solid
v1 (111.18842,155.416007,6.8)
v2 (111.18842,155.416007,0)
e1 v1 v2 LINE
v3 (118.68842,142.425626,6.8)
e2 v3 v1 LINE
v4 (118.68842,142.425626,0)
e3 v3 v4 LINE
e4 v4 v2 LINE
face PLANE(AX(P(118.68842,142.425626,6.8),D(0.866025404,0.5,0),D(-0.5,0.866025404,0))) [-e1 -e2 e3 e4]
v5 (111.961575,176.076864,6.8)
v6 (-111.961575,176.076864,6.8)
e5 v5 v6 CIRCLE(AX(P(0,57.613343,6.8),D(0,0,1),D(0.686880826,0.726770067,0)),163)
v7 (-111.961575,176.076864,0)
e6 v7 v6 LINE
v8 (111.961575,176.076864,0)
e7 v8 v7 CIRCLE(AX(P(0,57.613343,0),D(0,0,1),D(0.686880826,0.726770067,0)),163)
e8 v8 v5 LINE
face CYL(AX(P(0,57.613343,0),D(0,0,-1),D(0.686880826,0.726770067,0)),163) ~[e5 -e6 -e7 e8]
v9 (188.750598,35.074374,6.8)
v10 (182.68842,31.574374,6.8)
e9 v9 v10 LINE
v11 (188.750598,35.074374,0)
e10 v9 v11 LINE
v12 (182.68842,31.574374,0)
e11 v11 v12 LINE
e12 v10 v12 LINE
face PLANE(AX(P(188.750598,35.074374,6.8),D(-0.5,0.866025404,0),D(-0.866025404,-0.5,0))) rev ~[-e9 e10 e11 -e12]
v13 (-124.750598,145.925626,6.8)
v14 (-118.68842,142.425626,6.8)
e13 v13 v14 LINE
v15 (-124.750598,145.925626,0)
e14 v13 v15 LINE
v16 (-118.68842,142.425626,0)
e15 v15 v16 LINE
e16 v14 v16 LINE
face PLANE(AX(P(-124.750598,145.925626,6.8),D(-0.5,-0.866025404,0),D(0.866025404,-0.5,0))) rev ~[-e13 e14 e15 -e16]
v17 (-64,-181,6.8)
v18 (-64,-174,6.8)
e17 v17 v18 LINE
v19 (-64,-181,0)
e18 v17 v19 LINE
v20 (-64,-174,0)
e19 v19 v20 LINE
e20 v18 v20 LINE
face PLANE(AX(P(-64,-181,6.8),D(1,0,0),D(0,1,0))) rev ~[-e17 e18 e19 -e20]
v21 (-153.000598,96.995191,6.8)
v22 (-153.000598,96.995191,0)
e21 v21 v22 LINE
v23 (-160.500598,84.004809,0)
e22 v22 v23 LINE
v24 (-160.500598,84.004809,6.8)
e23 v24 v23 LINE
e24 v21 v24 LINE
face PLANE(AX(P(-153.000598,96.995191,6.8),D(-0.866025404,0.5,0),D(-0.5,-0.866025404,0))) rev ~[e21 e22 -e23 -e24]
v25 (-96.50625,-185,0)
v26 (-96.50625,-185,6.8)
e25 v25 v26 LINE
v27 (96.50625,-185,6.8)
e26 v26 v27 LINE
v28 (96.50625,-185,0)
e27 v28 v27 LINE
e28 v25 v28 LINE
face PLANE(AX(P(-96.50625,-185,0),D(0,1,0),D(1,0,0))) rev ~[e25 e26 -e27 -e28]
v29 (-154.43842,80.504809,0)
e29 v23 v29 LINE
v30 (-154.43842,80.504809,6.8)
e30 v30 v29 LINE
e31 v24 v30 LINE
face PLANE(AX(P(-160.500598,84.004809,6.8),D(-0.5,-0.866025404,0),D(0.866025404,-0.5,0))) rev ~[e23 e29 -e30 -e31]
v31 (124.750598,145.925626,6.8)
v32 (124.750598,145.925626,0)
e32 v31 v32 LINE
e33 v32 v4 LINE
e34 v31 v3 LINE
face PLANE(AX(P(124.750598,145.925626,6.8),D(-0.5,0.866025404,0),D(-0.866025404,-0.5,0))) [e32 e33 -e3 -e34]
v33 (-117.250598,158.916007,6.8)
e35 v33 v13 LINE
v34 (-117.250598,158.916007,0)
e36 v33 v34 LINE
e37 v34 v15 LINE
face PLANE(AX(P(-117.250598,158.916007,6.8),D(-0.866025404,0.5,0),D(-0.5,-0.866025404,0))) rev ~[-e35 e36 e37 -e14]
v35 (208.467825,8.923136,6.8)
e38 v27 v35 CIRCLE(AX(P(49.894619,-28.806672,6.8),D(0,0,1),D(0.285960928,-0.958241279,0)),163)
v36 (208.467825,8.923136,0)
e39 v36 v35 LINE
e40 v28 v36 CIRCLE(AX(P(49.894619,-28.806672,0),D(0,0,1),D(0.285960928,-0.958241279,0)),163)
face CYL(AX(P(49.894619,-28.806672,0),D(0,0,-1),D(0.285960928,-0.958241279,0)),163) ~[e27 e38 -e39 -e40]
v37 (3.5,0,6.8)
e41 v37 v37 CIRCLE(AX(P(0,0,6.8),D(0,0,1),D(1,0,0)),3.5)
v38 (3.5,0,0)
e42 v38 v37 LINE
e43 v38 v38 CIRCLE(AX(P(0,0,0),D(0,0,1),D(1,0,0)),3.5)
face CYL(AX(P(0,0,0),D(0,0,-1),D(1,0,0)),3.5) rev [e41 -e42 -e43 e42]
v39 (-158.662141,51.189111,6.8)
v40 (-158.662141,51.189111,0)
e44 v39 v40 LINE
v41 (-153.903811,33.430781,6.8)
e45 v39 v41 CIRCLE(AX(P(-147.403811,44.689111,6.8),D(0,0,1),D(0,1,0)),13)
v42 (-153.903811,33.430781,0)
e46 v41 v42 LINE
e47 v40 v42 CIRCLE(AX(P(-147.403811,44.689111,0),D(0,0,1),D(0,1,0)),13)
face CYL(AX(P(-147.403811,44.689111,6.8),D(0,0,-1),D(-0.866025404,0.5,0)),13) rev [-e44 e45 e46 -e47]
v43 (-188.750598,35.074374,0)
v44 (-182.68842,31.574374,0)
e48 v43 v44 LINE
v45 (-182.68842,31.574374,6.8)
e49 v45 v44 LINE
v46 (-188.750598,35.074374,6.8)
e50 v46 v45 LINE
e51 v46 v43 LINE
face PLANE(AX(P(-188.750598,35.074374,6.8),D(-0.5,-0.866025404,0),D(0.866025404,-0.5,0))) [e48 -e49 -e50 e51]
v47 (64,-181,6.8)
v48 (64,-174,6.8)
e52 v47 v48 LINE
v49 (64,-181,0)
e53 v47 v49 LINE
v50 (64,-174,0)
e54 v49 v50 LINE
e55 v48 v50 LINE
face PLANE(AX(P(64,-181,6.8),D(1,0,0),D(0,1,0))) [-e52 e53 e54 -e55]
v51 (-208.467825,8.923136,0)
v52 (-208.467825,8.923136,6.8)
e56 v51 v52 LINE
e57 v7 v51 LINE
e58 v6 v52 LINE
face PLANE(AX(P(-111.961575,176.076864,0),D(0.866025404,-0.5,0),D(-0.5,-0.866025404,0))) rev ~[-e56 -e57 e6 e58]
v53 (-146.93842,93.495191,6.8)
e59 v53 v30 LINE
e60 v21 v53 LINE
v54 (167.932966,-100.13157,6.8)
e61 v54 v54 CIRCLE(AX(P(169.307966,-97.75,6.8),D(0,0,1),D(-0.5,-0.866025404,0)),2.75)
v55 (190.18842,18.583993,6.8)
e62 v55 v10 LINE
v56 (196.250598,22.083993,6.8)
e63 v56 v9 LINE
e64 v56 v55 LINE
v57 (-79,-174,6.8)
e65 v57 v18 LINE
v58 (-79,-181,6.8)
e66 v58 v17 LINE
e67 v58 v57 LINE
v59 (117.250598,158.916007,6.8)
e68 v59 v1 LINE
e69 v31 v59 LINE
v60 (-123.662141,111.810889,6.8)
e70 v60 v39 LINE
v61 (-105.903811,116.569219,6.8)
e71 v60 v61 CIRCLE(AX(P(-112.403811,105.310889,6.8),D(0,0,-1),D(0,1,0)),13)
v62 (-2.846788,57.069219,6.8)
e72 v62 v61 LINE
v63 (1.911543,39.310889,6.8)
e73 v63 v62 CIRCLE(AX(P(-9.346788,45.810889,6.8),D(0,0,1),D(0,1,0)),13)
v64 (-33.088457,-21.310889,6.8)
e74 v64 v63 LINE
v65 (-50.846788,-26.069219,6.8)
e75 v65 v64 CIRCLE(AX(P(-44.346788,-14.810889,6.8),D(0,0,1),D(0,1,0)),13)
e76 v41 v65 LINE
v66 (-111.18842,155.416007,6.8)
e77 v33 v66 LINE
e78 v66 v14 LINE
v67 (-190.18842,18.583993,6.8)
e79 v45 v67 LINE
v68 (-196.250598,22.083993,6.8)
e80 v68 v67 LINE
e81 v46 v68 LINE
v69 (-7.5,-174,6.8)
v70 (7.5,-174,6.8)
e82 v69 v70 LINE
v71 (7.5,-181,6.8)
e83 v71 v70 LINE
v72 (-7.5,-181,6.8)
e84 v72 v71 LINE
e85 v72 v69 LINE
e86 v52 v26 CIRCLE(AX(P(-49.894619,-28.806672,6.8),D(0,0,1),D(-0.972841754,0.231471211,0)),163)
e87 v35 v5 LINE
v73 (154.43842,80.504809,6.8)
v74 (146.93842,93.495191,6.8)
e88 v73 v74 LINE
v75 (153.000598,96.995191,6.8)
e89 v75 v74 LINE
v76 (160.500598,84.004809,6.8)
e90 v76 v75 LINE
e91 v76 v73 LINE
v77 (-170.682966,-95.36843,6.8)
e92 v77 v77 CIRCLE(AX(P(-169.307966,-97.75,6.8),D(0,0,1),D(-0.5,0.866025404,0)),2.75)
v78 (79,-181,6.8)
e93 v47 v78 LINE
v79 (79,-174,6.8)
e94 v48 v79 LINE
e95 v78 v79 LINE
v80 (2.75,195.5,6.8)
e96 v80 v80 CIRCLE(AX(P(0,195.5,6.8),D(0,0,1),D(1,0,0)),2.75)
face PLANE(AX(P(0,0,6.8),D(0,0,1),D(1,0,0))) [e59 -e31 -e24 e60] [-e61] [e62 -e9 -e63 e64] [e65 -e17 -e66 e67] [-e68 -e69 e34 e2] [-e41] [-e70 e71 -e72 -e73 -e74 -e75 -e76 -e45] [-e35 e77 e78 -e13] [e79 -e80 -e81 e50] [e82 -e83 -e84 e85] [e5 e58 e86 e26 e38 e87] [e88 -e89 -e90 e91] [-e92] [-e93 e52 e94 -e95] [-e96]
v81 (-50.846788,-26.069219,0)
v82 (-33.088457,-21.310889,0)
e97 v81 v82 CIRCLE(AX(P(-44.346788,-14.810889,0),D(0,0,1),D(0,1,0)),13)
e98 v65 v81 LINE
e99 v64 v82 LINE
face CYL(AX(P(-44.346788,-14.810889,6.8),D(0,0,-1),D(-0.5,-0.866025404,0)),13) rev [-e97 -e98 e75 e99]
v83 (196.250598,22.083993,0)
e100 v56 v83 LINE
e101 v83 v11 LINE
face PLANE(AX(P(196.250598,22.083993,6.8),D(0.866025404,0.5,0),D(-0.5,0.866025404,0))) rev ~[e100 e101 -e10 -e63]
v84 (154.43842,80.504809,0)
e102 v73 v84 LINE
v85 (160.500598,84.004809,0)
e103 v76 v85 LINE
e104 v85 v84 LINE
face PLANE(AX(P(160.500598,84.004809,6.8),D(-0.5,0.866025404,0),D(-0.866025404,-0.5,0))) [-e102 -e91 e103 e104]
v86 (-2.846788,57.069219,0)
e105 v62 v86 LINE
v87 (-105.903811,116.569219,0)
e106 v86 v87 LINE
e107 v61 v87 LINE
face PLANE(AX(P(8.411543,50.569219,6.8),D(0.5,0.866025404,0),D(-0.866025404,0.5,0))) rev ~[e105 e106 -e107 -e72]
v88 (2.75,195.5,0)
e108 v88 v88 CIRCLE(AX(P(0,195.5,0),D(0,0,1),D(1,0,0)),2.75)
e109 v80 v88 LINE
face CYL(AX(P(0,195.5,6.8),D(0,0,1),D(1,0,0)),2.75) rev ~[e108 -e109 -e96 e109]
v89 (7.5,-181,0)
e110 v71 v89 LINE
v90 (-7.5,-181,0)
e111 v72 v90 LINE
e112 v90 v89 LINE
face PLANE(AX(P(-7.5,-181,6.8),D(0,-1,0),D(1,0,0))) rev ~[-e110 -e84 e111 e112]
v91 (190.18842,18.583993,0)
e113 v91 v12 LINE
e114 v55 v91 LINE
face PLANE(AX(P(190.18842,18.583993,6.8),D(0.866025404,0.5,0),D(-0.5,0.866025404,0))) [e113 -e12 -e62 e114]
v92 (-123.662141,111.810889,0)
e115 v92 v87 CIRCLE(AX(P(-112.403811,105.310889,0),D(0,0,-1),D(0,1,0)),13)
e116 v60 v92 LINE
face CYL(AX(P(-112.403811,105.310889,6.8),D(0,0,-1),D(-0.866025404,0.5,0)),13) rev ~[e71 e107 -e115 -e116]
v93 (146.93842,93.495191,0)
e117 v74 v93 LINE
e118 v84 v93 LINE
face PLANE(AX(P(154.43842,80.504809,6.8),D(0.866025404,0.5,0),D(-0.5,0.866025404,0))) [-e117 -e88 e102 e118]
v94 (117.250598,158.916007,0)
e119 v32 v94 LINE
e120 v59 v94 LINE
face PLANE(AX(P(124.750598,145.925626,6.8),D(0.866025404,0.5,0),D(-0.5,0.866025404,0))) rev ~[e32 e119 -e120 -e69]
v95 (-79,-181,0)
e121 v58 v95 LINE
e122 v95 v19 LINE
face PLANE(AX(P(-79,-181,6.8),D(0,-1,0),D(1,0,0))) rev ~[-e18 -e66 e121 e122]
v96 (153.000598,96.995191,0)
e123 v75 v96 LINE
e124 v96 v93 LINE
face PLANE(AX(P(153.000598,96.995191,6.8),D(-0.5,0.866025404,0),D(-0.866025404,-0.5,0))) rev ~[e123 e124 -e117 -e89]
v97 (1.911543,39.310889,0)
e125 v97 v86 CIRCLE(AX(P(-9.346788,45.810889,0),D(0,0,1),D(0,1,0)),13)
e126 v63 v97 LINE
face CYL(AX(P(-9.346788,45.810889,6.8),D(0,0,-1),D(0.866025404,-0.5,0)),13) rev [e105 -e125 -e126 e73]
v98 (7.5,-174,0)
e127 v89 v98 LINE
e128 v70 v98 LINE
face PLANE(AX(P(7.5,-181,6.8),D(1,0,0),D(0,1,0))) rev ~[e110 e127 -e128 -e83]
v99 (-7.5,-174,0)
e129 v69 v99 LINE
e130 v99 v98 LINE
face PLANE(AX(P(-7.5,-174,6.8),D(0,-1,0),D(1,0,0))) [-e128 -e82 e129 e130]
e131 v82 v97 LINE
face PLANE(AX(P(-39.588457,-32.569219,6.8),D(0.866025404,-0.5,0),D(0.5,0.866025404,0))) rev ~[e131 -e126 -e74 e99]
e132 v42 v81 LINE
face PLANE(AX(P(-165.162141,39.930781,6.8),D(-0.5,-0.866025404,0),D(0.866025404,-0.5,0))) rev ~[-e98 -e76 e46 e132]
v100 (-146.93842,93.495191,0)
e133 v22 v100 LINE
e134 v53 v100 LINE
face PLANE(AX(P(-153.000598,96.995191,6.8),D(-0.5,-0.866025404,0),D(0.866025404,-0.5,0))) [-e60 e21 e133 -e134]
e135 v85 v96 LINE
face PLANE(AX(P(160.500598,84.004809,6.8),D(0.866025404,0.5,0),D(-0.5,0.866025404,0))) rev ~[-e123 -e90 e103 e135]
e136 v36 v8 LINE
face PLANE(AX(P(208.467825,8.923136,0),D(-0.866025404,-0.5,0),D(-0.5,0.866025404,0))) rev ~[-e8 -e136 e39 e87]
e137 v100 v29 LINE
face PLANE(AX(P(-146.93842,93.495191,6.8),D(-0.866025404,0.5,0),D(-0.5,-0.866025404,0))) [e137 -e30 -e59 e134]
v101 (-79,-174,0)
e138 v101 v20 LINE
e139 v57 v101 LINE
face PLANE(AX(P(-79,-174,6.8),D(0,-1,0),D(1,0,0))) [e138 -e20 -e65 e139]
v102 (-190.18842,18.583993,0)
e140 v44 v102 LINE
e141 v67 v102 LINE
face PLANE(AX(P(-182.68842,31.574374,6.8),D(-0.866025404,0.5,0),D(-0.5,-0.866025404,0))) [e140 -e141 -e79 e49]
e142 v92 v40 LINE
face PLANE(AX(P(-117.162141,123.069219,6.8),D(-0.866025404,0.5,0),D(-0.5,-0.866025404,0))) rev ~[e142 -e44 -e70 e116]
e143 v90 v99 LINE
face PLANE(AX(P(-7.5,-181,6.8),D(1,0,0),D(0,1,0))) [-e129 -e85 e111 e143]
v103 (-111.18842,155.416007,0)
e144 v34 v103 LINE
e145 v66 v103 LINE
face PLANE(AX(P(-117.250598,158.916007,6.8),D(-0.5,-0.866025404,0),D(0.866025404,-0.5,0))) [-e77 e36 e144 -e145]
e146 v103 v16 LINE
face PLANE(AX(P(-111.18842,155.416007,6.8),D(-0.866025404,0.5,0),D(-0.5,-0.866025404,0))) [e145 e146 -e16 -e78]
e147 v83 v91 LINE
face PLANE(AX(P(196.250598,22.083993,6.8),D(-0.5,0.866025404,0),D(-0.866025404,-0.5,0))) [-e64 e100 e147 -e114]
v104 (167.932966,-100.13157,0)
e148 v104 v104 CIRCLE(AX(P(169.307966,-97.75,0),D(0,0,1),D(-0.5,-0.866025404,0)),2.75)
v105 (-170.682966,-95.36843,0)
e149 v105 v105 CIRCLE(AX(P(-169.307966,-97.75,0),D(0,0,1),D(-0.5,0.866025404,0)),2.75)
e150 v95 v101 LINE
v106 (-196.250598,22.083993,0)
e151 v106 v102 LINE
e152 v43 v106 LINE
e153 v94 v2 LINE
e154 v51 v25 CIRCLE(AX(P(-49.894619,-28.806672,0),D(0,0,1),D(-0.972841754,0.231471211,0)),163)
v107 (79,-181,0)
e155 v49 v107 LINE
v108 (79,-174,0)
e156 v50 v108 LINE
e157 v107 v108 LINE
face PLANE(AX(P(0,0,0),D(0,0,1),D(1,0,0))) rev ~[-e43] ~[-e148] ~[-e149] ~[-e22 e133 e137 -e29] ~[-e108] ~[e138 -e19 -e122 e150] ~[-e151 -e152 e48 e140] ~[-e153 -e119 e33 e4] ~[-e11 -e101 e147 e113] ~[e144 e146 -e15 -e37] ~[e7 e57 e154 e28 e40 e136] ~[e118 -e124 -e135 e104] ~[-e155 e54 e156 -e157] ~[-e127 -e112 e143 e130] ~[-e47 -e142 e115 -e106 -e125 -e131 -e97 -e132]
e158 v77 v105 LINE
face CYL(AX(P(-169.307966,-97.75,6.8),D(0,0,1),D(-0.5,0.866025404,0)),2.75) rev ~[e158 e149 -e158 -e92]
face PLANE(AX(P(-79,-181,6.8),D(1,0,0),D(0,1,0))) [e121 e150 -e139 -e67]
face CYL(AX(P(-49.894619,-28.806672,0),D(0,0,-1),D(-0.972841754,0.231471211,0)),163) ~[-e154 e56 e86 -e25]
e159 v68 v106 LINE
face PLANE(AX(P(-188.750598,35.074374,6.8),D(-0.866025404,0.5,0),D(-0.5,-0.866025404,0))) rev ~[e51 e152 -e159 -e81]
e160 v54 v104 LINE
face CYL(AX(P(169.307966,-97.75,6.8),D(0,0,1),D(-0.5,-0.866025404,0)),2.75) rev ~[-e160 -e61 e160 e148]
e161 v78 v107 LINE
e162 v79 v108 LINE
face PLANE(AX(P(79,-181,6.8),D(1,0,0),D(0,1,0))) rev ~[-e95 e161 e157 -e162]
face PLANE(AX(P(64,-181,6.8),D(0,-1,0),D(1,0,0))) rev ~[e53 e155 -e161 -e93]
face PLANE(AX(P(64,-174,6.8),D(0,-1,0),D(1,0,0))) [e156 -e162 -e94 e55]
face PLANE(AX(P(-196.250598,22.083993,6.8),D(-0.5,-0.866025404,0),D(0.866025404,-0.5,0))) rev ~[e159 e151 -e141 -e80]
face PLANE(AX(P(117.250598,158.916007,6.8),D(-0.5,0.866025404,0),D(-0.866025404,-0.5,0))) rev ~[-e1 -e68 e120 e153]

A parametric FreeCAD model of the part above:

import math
import FreeCAD as App
import Part
import Sketcher

V = App.Vector
Q = App.Units.Quantity


def edges_at(feature, points):
    """Names of the edges that pass closest to the given points."""
    edges = feature.Shape.Edges
    near = lambda p: min(range(len(edges)), key=lambda i: edges[i].distToShape(Part.Vertex(*p))[0])
    return sorted({f"Edge{near(p) + 1}" for p in points})

doc = App.newDocument("Part")
body = doc.addObject("PartDesign::Body", "Body")

# Sketch on XY plane
sketch1 = doc.addObject("Sketcher::SketchObject", "Sketch")
body.addObject(sketch1)
sketch1.AttachmentSupport = (doc.XY_Plane, [""])
sketch1.MapMode = "FlatFace"
sketch1.addGeometry([
    Part.LineSegment(V(-96.50625, -185, 0), V(96.50625, -185, 0)),  # 0
    Part.ArcOfCircle(Part.Circle(V(49.894619, -28.806672, 0), V(0, 0, 1), 163), math.radians(-73.383704), math.radians(13.383704)),  # 1
    Part.LineSegment(V(208.467825, 8.923136, 0), V(111.961575, 176.076864, 0)),  # 2
    Part.ArcOfCircle(Part.Circle(V(0, 57.613343, 0), V(0, 0, 1), 163), math.radians(46.616296), math.radians(133.383704)),  # 3
    Part.LineSegment(V(-111.961575, 176.076864, 0), V(-208.467825, 8.923136, 0)),  # 4
    Part.ArcOfCircle(Part.Circle(V(-49.894619, -28.806672, 0), V(0, 0, 1), 163), math.radians(166.616296), math.radians(253.383704)),  # 5
    Part.Circle(V(0, 0, 0), V(0, 0, 1), 3.5),  # 6
], False)
sketch1.addConstraint([
    Sketcher.Constraint("Coincident", 0, 2, 1, 1),
    Sketcher.Constraint("Coincident", 1, 2, 2, 1),
    Sketcher.Constraint("Coincident", 2, 2, 3, 1),
    Sketcher.Constraint("Coincident", 3, 2, 4, 1),
    Sketcher.Constraint("Coincident", 4, 2, 5, 1),
    Sketcher.Constraint("Coincident", 5, 2, 0, 1),
    Sketcher.Constraint("Horizontal", 0),
    Sketcher.Constraint("Coincident", 6, 3, -1, 1),
    Sketcher.Constraint("Equal", 1, 3),
    Sketcher.Constraint("Equal", 3, 5),
    Sketcher.Constraint("Symmetric", 1, 3, 5, 3, -2),
    Sketcher.Constraint("Symmetric", 2, 2, 3, 2, -2),
    Sketcher.Constraint("Horizontal", 1, 2, 4, 2),
    Sketcher.Constraint("Diameter", 6, Q("7 mm")),
    Sketcher.Constraint("Radius", 1, Q("163 mm")),
    Sketcher.Constraint("Angle", 2, Q("120 deg")),
    Sketcher.Constraint("DistanceY", 0, 2, -1, 1, Q("185 mm")),
    Sketcher.Constraint("DistanceX", 0, 1, 0, 2, Q("193.0125 mm")),
    Sketcher.Constraint("Distance", 2, Q("193.0125 mm")),
    Sketcher.Constraint("DistanceX", -1, 1, 1, 3, Q("49.894619 mm")),
    Sketcher.Constraint("DistanceY", 3, 3, 2, 2, Q("118.463521 mm")),
])
pad1 = doc.addObject("PartDesign::Pad", "Pad")
body.addObject(pad1)
pad1.Profile = sketch1
pad1.Length = 6.8

# Sketch on XY plane
sketch2 = doc.addObject("Sketcher::SketchObject", "Sketch001")
body.addObject(sketch2)
sketch2.AttachmentSupport = (doc.XY_Plane, [""])
sketch2.MapMode = "FlatFace"
sketch2.AttachmentOffset = App.Placement(V(0, 0, 6.8), App.Rotation())
sketch2.addGeometry([
    Part.LineSegment(V(-7.5, -174, 0), V(-7.5, -181, 0)),  # 0
    Part.LineSegment(V(-7.5, -181, 0), V(7.5, -181, 0)),  # 1
    Part.LineSegment(V(7.5, -181, 0), V(7.5, -174, 0)),  # 2
    Part.LineSegment(V(7.5, -174, 0), V(-7.5, -174, 0)),  # 3
    Part.LineSegment(V(64, -174, 0), V(64, -181, 0)),  # 4
    Part.LineSegment(V(64, -181, 0), V(79, -181, 0)),  # 5
    Part.LineSegment(V(79, -181, 0), V(79, -174, 0)),  # 6
    Part.LineSegment(V(79, -174, 0), V(64, -174, 0)),  # 7
    Part.LineSegment(V(-79, -174, 0), V(-79, -181, 0)),  # 8
    Part.LineSegment(V(-79, -181, 0), V(-64, -181, 0)),  # 9
    Part.LineSegment(V(-64, -181, 0), V(-64, -174, 0)),  # 10
    Part.LineSegment(V(-64, -174, 0), V(-79, -174, 0)),  # 11
], False)
sketch2.addConstraint([
    Sketcher.Constraint("Coincident", 0, 2, 1, 1),
    Sketcher.Constraint("Coincident", 1, 2, 2, 1),
    Sketcher.Constraint("Coincident", 2, 2, 3, 1),
    Sketcher.Constraint("Coincident", 3, 2, 0, 1),
    Sketcher.Constraint("Coincident", 4, 2, 5, 1),
    Sketcher.Constraint("Coincident", 5, 2, 6, 1),
    Sketcher.Constraint("Coincident", 6, 2, 7, 1),
    Sketcher.Constraint("Coincident", 7, 2, 4, 1),
    Sketcher.Constraint("Coincident", 8, 2, 9, 1),
    Sketcher.Constraint("Coincident", 9, 2, 10, 1),
    Sketcher.Constraint("Coincident", 10, 2, 11, 1),
    Sketcher.Constraint("Coincident", 11, 2, 8, 1),
    Sketcher.Constraint("Vertical", 0),
    Sketcher.Constraint("Horizontal", 1),
    Sketcher.Constraint("Vertical", 2),
    Sketcher.Constraint("Horizontal", 3),
    Sketcher.Constraint("Vertical", 4),
    Sketcher.Constraint("Horizontal", 5),
    Sketcher.Constraint("Vertical", 6),
    Sketcher.Constraint("Horizontal", 7),
    Sketcher.Constraint("Vertical", 8),
    Sketcher.Constraint("Horizontal", 9),
    Sketcher.Constraint("Vertical", 10),
    Sketcher.Constraint("Horizontal", 11),
    Sketcher.Constraint("Symmetric", 5, 2, 8, 2, -2),
    Sketcher.Constraint("Symmetric", 7, 2, 10, 2, -2),
    Sketcher.Constraint("Horizontal", 1, 2, 4, 2),
    Sketcher.Constraint("Horizontal", 3, 2, 6, 2),
    Sketcher.Constraint("Equal", 3, 5),
    Sketcher.Constraint("DistanceX", 1, 1, 1, 2, Q("15 mm")),
    Sketcher.Constraint("DistanceY", 0, 2, 0, 1, Q("7 mm")),
    Sketcher.Constraint("DistanceY", 0, 2, -1, 1, Q("181 mm")),
    Sketcher.Constraint("DistanceX", -1, 1, 4, 2, Q("64 mm")),
    Sketcher.Constraint("DistanceX", 0, 2, -1, 1, Q("7.5 mm")),
])
pocket1 = doc.addObject("PartDesign::Pocket", "Pocket")
body.addObject(pocket1)
pocket1.Profile = sketch2
pocket1.Length = 6.8

# Sketch on XY plane
sketch3 = doc.addObject("Sketcher::SketchObject", "Sketch002")
body.addObject(sketch3)
sketch3.AttachmentSupport = (doc.XY_Plane, [""])
sketch3.MapMode = "FlatFace"
sketch3.AttachmentOffset = App.Placement(V(0, 0, 6.8), App.Rotation())
sketch3.addGeometry(Part.Circle(V(0, 195.5, 0), V(0, 0, 1), 2.75), False)
sketch3.addConstraint([
    Sketcher.Constraint("PointOnObject", 0, 3, -2),
    Sketcher.Constraint("Diameter", 0, Q("5.5 mm")),
    Sketcher.Constraint("DistanceY", -1, 1, 0, 3, Q("195.5 mm")),
])
pocket2 = doc.addObject("PartDesign::Pocket", "Pocket001")
body.addObject(pocket2)
pocket2.Profile = sketch3
pocket2.Length = 6.8
doc.recompute()

polarpattern = doc.addObject("PartDesign::PolarPattern", "PolarPattern")
body.addObject(polarpattern)
polarpattern.Originals = [pocket1, pocket2]
polarpattern.Axis = (doc.Z_Axis, [""])
polarpattern.Angle = 360
polarpattern.Occurrences = 3
body.Tip = polarpattern

# Sketch on XY plane
sketch4 = doc.addObject("Sketcher::SketchObject", "Sketch003")
body.addObject(sketch4)
sketch4.AttachmentSupport = (doc.XY_Plane, [""])
sketch4.MapMode = "FlatFace"
sketch4.AttachmentOffset = App.Placement(V(0, 0, 6.8), App.Rotation())
sketch4.addGeometry([
    Part.LineSegment(V(-117.162141, 123.069219, 0), V(-165.162141, 39.930781, 0)),
    Part.LineSegment(V(-165.162141, 39.930781, 0), V(-39.588457, -32.569219, 0)),
    Part.LineSegment(V(-39.588457, -32.569219, 0), V(8.411543, 50.569219, 0)),
    Part.LineSegment(V(8.411543, 50.569219, 0), V(-117.162141, 123.069219, 0)),
], False)
sketch4.addConstraint([
    Sketcher.Constraint("Coincident", 0, 2, 1, 1),
    Sketcher.Constraint("Coincident", 1, 2, 2, 1),
    Sketcher.Constraint("Coincident", 2, 2, 3, 1),
    Sketcher.Constraint("Coincident", 3, 2, 0, 1),
    Sketcher.Constraint("Perpendicular", 0, 1),
    Sketcher.Constraint("Perpendicular", 1, 2),
    Sketcher.Constraint("Perpendicular", 2, 3),
    Sketcher.Constraint("Angle", 0, Q("-120 deg")),
    Sketcher.Constraint("Distance", 0, Q("96 mm")),
    Sketcher.Constraint("Distance", 1, Q("145 mm")),
    Sketcher.Constraint("DistanceX", 0, 2, -1, 1, Q("165.162141 mm")),
    Sketcher.Constraint("DistanceY", -1, 1, 0, 2, Q("39.930781 mm")),
])
pocket3 = doc.addObject("PartDesign::Pocket", "Pocket002")
body.addObject(pocket3)
pocket3.Profile = sketch4
pocket3.Length = 6.8
doc.recompute()

fillet = doc.addObject("PartDesign::Fillet", "Fillet")
body.addObject(fillet)
fillet.Base = (pocket3, edges_at(pocket3, [
    (-117.162, 123.069, 3.4),
    (8.412, 50.569, 3.4),
    (-39.588, -32.569, 3.4),
    (-165.162, 39.931, 3.4),
]))
fillet.Radius = 13

doc.recompute()
